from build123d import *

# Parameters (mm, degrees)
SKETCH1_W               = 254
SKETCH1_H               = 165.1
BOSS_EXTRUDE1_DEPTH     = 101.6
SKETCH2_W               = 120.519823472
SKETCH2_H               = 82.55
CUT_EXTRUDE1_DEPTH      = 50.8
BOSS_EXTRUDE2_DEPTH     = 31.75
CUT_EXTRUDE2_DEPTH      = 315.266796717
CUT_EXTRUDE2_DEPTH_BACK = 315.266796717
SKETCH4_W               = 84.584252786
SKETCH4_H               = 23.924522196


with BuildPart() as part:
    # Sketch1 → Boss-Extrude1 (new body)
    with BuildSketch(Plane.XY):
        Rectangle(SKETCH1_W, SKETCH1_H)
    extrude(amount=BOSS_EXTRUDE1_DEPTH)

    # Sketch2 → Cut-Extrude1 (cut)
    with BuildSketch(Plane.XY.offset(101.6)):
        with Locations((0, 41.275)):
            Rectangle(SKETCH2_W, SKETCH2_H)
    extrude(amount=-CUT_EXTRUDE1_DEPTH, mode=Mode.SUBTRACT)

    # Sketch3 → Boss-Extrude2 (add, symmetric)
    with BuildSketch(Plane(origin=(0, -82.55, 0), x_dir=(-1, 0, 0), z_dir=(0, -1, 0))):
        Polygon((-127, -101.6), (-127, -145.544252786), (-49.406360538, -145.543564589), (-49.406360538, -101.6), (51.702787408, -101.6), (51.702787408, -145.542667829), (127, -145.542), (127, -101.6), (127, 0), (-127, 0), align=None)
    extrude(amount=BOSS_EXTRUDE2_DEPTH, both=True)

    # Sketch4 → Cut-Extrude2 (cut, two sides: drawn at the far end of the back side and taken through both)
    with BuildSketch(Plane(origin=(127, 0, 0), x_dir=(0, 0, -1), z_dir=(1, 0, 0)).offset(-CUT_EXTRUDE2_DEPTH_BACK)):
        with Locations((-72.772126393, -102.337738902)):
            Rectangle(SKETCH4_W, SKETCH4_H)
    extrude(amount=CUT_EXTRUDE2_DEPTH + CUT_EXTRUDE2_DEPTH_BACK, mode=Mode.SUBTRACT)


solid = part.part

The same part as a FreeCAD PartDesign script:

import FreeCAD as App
import Part
import Sketcher

V = App.Vector
Q = App.Units.Quantity

doc = App.newDocument("Part")
body = doc.addObject("PartDesign::Body", "Body")

sketch1 = doc.addObject("Sketcher::SketchObject", "Sketch")
body.addObject(sketch1)
sketch1.AttachmentSupport = (doc.XY_Plane, [""])
sketch1.MapMode = "FlatFace"
sketch1.addGeometry([
    Part.LineSegment(V(-127, 83, 0), V(-127, -83, 0)),
    Part.LineSegment(V(-127, -83, 0), V(127, -83, 0)),
    Part.LineSegment(V(127, -83, 0), V(127, 83, 0)),
    Part.LineSegment(V(127, 83, 0), V(-127, 83, 0)),
], False)
sketch1.addConstraint([
    Sketcher.Constraint("Coincident", 0, 2, 1, 1),
    Sketcher.Constraint("Coincident", 1, 2, 2, 1),
    Sketcher.Constraint("Coincident", 2, 2, 3, 1),
    Sketcher.Constraint("Coincident", 3, 2, 0, 1),
    Sketcher.Constraint("Vertical", 0),
    Sketcher.Constraint("Horizontal", 1),
    Sketcher.Constraint("Vertical", 2),
    Sketcher.Constraint("Horizontal", 3),
    Sketcher.Constraint("Symmetric", 0, 2, 2, 2, -1, 1),
    Sketcher.Constraint("DistanceX", 1, 1, 1, 2, Q("10 in")),
    Sketcher.Constraint("DistanceY", 0, 2, 0, 1, Q("6.5 in")),
])
pad1 = doc.addObject("PartDesign::Pad", "Pad")
body.addObject(pad1)
pad1.Profile = sketch1
pad1.Length = Q("4 in")

sketch2 = doc.addObject("Sketcher::SketchObject", "Sketch001")
body.addObject(sketch2)
sketch2.AttachmentSupport = (doc.XY_Plane, [""])
sketch2.MapMode = "FlatFace"
sketch2.AttachmentOffset = App.Placement(V(0, 0, 4 * 25.4), App.Rotation())
sketch2.addGeometry([
    Part.LineSegment(V(-60, 83, 0), V(-60, 0, 0)),
    Part.LineSegment(V(-60, 0, 0), V(60, 0, 0)),
    Part.LineSegment(V(60, 0, 0), V(60, 83, 0)),
    Part.LineSegment(V(60, 83, 0), V(-60, 83, 0)),
], False)
sketch2.addConstraint([
    Sketcher.Constraint("Coincident", 0, 2, 1, 1),
    Sketcher.Constraint("Coincident", 1, 2, 2, 1),
    Sketcher.Constraint("Coincident", 2, 2, 3, 1),
    Sketcher.Constraint("Coincident", 3, 2, 0, 1),
    Sketcher.Constraint("Vertical", 0),
    Sketcher.Constraint("Horizontal", 1),
    Sketcher.Constraint("Vertical", 2),
    Sketcher.Constraint("Horizontal", 3),
    Sketcher.Constraint("Symmetric", 0, 2, 1, 2, -1, 1),
    Sketcher.Constraint("DistanceY", 0, 2, 0, 1, Q("3.25 in")),
    Sketcher.Constraint("DistanceX", 1, 1, 1, 2, 120.519823),
])
pocket1 = doc.addObject("PartDesign::Pocket", "Pocket")
body.addObject(pocket1)
pocket1.Profile = sketch2
pocket1.Length = Q("2 in")

sketch3 = doc.addObject("Sketcher::SketchObject", "Sketch002")
body.addObject(sketch3)
sketch3.AttachmentSupport = (doc.XZ_Plane, [""])
sketch3.MapMode = "FlatFace"
sketch3.AttachmentOffset = App.Placement(V(0, 0, 3.25 * 25.4), App.Rotation())
sketch3.addGeometry([
    Part.LineSegment(V(127, 146, 0), V(49, 146, 0)),
    Part.LineSegment(V(49, 146, 0), V(49, 102, 0)),
    Part.LineSegment(V(49, 102, 0), V(-52, 102, 0)),
    Part.LineSegment(V(-52, 102, 0), V(-52, 146, 0)),
    Part.LineSegment(V(-52, 146, 0), V(-127, 146, 0)),
    Part.LineSegment(V(-127, 146, 0), V(-127, 0, 0)),
    Part.LineSegment(V(-127, 0, 0), V(127, 0, 0)),
    Part.LineSegment(V(127, 0, 0), V(127, 146, 0)),
], False)
sketch3.addConstraint([
    Sketcher.Constraint("Coincident", 0, 2, 1, 1),
    Sketcher.Constraint("Coincident", 1, 2, 2, 1),
    Sketcher.Constraint("Coincident", 2, 2, 3, 1),
    Sketcher.Constraint("Coincident", 3, 2, 4, 1),
    Sketcher.Constraint("Coincident", 4, 2, 5, 1),
    Sketcher.Constraint("Coincident", 5, 2, 6, 1),
    Sketcher.Constraint("Coincident", 6, 2, 7, 1),
    Sketcher.Constraint("Coincident", 7, 2, 0, 1),
    Sketcher.Constraint("Vertical", 1),
    Sketcher.Constraint("Horizontal", 2),
    Sketcher.Constraint("Vertical", 3),
    Sketcher.Constraint("Vertical", 5),
    Sketcher.Constraint("Horizontal", 6),
    Sketcher.Constraint("Vertical", 7),
    Sketcher.Constraint("Symmetric", 5, 2, 6, 2, -1, 1),
    Sketcher.Constraint("Parallel", 0, 4),
    Sketcher.Constraint("DistanceX", 6, 1, 6, 2, Q("10 in")),
    Sketcher.Constraint("DistanceY", -1, 1, 1, 2, Q("4 in")),
    Sketcher.Constraint("DistanceY", 5, 2, 5, 1, Q("5.73 in")),
    Sketcher.Constraint("Distance", 0, 77.593639),
    Sketcher.Constraint("DistanceX", 2, 2, 2, 1, 101.109148),
    Sketcher.Constraint("DistanceY", 1, 2, 1, 1, 43.943565),
    Sketcher.Constraint("DistanceY", 3, 1, 3, 2, 43.942668),
])
pad2 = doc.addObject("PartDesign::Pad", "Pad001")
body.addObject(pad2)
pad2.Profile = sketch3
pad2.Length = Q("2.5 in")
pad2.Midplane = True

sketch4 = doc.addObject("Sketcher::SketchObject", "Sketch003")
body.addObject(sketch4)
sketch4.AttachmentSupport = (doc.YZ_Plane, [""])
sketch4.MapMode = "FlatFace"
sketch4.AttachmentOffset = App.Placement(V(0, 0, 5 * 25.4), App.Rotation())
sketch4.addGeometry([
    Part.LineSegment(V(-90, 115, 0), V(-114, 115, 0)),
    Part.LineSegment(V(-114, 115, 0), V(-114, 30, 0)),
    Part.LineSegment(V(-114, 30, 0), V(-90, 30, 0)),
    Part.LineSegment(V(-90, 30, 0), V(-90, 115, 0)),
], False)
sketch4.addConstraint([
    Sketcher.Constraint("Coincident", 0, 2, 1, 1),
    Sketcher.Constraint("Coincident", 1, 2, 2, 1),
    Sketcher.Constraint("Coincident", 2, 2, 3, 1),
    Sketcher.Constraint("Coincident", 3, 2, 0, 1),
    Sketcher.Constraint("Horizontal", 0),
    Sketcher.Constraint("Vertical", 1),
    Sketcher.Constraint("Horizontal", 2),
    Sketcher.Constraint("Vertical", 3),
    Sketcher.Constraint("DistanceX", 0, 2, -1, 1, Q("4.5 in")),
    Sketcher.Constraint("DistanceY", -1, 1, 1, 2, Q("1.2 in")),
    Sketcher.Constraint("DistanceX", 0, 2, 0, 1, 23.924522),
    Sketcher.Constraint("DistanceY", 1, 2, 1, 1, 84.584253),
])
pocket2 = doc.addObject("PartDesign::Pocket", "Pocket001")
body.addObject(pocket2)
pocket2.Profile = sketch4
pocket2.Type = "ThroughAll"
pocket2.Midplane = True

doc.recompute()
